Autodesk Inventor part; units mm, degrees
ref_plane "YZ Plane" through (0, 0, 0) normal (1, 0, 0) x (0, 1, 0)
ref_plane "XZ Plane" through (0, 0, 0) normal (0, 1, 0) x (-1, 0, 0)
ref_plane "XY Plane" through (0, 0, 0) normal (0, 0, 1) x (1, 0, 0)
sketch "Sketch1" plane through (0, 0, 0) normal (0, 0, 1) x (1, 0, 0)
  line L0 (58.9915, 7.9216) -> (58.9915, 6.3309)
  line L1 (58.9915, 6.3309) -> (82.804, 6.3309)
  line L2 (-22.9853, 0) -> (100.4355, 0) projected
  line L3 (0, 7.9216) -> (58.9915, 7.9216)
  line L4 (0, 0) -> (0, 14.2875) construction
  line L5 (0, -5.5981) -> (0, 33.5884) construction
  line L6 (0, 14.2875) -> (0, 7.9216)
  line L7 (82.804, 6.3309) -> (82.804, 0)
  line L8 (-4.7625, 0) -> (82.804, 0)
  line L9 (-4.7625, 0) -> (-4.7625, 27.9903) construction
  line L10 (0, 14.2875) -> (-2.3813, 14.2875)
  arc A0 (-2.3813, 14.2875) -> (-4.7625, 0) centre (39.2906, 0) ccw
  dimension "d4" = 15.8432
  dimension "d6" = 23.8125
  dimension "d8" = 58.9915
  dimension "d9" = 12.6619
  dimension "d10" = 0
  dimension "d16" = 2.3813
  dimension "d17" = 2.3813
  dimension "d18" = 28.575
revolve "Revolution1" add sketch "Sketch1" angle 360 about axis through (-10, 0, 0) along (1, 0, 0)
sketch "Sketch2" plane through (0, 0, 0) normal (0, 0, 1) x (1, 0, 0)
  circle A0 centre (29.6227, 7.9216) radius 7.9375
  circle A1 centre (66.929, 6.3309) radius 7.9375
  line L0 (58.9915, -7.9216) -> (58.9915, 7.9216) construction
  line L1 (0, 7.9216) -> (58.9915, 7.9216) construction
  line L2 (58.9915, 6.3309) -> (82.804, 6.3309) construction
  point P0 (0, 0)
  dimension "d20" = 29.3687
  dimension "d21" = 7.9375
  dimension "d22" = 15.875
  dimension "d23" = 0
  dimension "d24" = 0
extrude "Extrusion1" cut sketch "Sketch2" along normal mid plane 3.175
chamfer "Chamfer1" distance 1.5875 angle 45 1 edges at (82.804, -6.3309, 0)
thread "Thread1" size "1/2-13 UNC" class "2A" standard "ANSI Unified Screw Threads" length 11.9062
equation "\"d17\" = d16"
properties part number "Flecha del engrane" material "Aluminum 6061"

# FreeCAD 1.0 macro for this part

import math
import FreeCAD as App
import Part
import Sketcher
Q = App.Units.Quantity


def edges_at(feature, points):
    """Names of the edges that pass closest to the given points."""
    edges = feature.Shape.Edges
    near = lambda p: min(range(len(edges)), key=lambda i: edges[i].distToShape(Part.Vertex(*p))[0])
    return sorted({f"Edge{near(p) + 1}" for p in points})

doc = App.newDocument("Part")
body = doc.addObject("PartDesign::Body", "Body")

sketch1 = body.newObject("Sketcher::SketchObject", "Sketch")
sketch1.AttachmentSupport = (doc.getObject("XY_Plane"), [""])
sketch1.MapMode = "FlatFace"
sketch1.addGeometry(Part.LineSegment(App.Vector(59, 6.3, 0), App.Vector(59, 7.9, 0)), False)
sketch1.addGeometry(Part.LineSegment(App.Vector(59, 7.9, 0), App.Vector(0, 7.9, 0)), False)
sketch1.addGeometry(Part.LineSegment(App.Vector(0, 7.9, 0), App.Vector(0, 14.3, 0)), False)
sketch1.addGeometry(Part.LineSegment(App.Vector(0, 14.3, 0), App.Vector(-2.4, 14.3, 0)), False)
sketch1.addGeometry(Part.ArcOfCircle(Part.Circle(App.Vector(39.3, 0, 0), App.Vector(0, 0, 1), 44.1), math.radians(161.08), math.radians(180)), False)
sketch1.addGeometry(Part.LineSegment(App.Vector(-4.8, 0, 0), App.Vector(82.8, 0, 0)), False)
sketch1.addGeometry(Part.LineSegment(App.Vector(82.8, 0, 0), App.Vector(82.8, 6.3, 0)), False)
sketch1.addGeometry(Part.LineSegment(App.Vector(82.8, 6.3, 0), App.Vector(59, 6.3, 0)), False)
sketch1.addConstraint(Sketcher.Constraint("Coincident", 0, 2, 1, 1))
sketch1.addConstraint(Sketcher.Constraint("Coincident", 1, 2, 2, 1))
sketch1.addConstraint(Sketcher.Constraint("Coincident", 2, 2, 3, 1))
sketch1.addConstraint(Sketcher.Constraint("Coincident", 3, 2, 4, 1))
sketch1.addConstraint(Sketcher.Constraint("Coincident", 4, 2, 5, 1))
sketch1.addConstraint(Sketcher.Constraint("Coincident", 5, 2, 6, 1))
sketch1.addConstraint(Sketcher.Constraint("Coincident", 6, 2, 7, 1))
sketch1.addConstraint(Sketcher.Constraint("Coincident", 7, 2, 0, 1))
sketch1.addConstraint(Sketcher.Constraint("Vertical", 0))
sketch1.addConstraint(Sketcher.Constraint("Horizontal", 1))
sketch1.addConstraint(Sketcher.Constraint("Vertical", 2))
sketch1.addConstraint(Sketcher.Constraint("Horizontal", 3))
sketch1.addConstraint(Sketcher.Constraint("Horizontal", 5))
sketch1.addConstraint(Sketcher.Constraint("Vertical", 6))
sketch1.addConstraint(Sketcher.Constraint("Horizontal", 7))
sketch1.addConstraint(Sketcher.Constraint("PointOnObject", 1, 2, -2))
sketch1.addConstraint(Sketcher.Constraint("PointOnObject", 4, 2, -1))
sketch1.addConstraint(Sketcher.Constraint("DistanceX", 3, 2, 3, 1, Q("0.093752 in")))
sketch1.addConstraint(Sketcher.Constraint("DistanceX", 7, 2, 7, 1, Q("0.9375 in")))
sketch1.addConstraint(Sketcher.Constraint("DistanceX", 1, 2, 1, 1, Q("2.3225 in")))
sketch1.addConstraint(Sketcher.Constraint("DistanceX", 4, 2, 3, 2, Q("0.093748 in")))
sketch1.addConstraint(Sketcher.Constraint("Radius", 4, Q("1.7343 in")))
sketch1.addConstraint(Sketcher.Constraint("DistanceY", -1, 1, 4, 3, Q("0.0004 mm")))
sketch1.addConstraint(Sketcher.Constraint("DistanceY", 0, 1, 0, 2, Q("1.5907 mm")))
sketch1.addConstraint(Sketcher.Constraint("DistanceY", 2, 1, 2, 2, Q("6.366 mm")))
revolution = body.newObject("PartDesign::Revolution", "Revolution")
revolution.Profile = sketch1
revolution.ReferenceAxis = (sketch1, ["H_Axis"])
revolution.Angle = 360

sketch2 = body.newObject("Sketcher::SketchObject", "Sketch001")
sketch2.AttachmentSupport = (doc.getObject("XY_Plane"), [""])
sketch2.MapMode = "FlatFace"
sketch2.addGeometry(Part.Circle(App.Vector(30, 8, 0), App.Vector(0, 0, 1), 8), False)
sketch2.addGeometry(Part.Circle(App.Vector(67, 6, 0), App.Vector(0, 0, 1), 8), False)
sketch2.addConstraint(Sketcher.Constraint("Equal", 0, 1))
sketch2.addConstraint(Sketcher.Constraint("Diameter", 0, Q("0.625 in")))
sketch2.addConstraint(Sketcher.Constraint("DistanceX", -1, 1, 1, 3, Q("2.635 in")))
sketch2.addConstraint(Sketcher.Constraint("DistanceX", 0, 3, 1, 3, Q("1.468752 in")))
sketch2.addConstraint(Sketcher.Constraint("DistanceY", -1, 1, 0, 3, Q("7.9216 mm")))
sketch2.addConstraint(Sketcher.Constraint("DistanceY", -1, 1, 1, 3, Q("6.331 mm")))
pocket1 = body.newObject("PartDesign::Pocket", "Pocket")
pocket1.Profile = sketch2
pocket1.Length = Q("0.125 in")
pocket1.Midplane = True
doc.recompute()

chamfer = body.newObject("PartDesign::Chamfer", "Chamfer")
chamfer.Base = (pocket1, edges_at(pocket1, [(82.804, -6.331, 0)]))
chamfer.Size = Q("0.0625 in")

doc.recompute()
